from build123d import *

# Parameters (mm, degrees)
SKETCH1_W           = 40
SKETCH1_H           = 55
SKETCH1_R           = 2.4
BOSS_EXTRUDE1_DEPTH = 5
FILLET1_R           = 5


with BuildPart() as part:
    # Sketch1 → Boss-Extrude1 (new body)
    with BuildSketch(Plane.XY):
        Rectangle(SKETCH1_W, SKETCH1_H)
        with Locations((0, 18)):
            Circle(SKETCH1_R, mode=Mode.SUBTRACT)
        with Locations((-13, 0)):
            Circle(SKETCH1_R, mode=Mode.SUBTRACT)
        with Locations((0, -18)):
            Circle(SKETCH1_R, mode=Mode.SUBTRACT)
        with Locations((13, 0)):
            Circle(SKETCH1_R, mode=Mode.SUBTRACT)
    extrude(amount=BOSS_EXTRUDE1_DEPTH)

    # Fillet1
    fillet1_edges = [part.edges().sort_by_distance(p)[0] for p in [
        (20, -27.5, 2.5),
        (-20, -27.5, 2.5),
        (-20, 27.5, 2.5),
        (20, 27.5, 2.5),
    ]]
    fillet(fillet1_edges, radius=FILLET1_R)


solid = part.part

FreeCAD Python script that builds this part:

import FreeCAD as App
import Part
import Sketcher

V = App.Vector


def edges_at(feature, points):
    """Names of the edges that pass closest to the given points."""
    edges = feature.Shape.Edges
    near = lambda p: min(range(len(edges)), key=lambda i: edges[i].distToShape(Part.Vertex(*p))[0])
    return sorted({f"Edge{near(p) + 1}" for p in points})


def add_polygon(sketch, points):
    """Adds a closed chain of lines whose ends are joined by coincident constraints."""
    first, n = sketch.GeometryCount, len(points)
    for a, b in zip(points, points[1:] + points[:1]):
        sketch.addGeometry(Part.LineSegment(App.Vector(*a, 0), App.Vector(*b, 0)), False)
    for i in range(n):
        sketch.addConstraint(Sketcher.Constraint("Coincident", first + i, 2, first + (i + 1) % n, 1))

doc = App.newDocument("Part")
params = doc.addObject("Spreadsheet::Sheet", "Params")
for row, (alias, value) in enumerate([
    ("sketch1_diameter", "4.8 mm"),
    ("sketch1_width", "40 mm"),
    ("sketch1_height", "55 mm"),
    ("pad1_length", "5 mm"),
    ("fillet_radius", "5 mm"),
], start=1):
    params.set(f"A{row}", alias)
    params.set(f"B{row}", "=" + value)
    params.setAlias(f"B{row}", alias)

body = doc.addObject("PartDesign::Body", "Body")

sketch1 = body.newObject("Sketcher::SketchObject", "Sketch")
sketch1.AttachmentSupport = (doc.getObject("XY_Plane"), [""])
sketch1.MapMode = "FlatFace"
add_polygon(sketch1, [(-20, 27.5), (-20, -27.5), (20, -27.5), (20, 27.5)])
sketch1.addGeometry(Part.Circle(V(0, -18, 0), V(0, 0, 1), 2.4), False)
sketch1.addGeometry(Part.Circle(V(-13, 0, 0), V(0, 0, 1), 2.4), False)
sketch1.addGeometry(Part.Circle(V(0, 18, 0), V(0, 0, 1), 2.4), False)
sketch1.addGeometry(Part.Circle(V(13, 0, 0), V(0, 0, 1), 2.4), False)
sketch1.addConstraint(Sketcher.Constraint("Vertical", 0))
sketch1.addConstraint(Sketcher.Constraint("Horizontal", 1))
sketch1.addConstraint(Sketcher.Constraint("Vertical", 2))
sketch1.addConstraint(Sketcher.Constraint("Horizontal", 3))
sketch1.addConstraint(Sketcher.Constraint("Equal", 4, 5))
sketch1.addConstraint(Sketcher.Constraint("Equal", 5, 6))
sketch1.addConstraint(Sketcher.Constraint("Equal", 6, 7))
sketch1.addConstraint(Sketcher.Constraint("Symmetric", 4, 3, 6, 3, -1, 1))
sketch1.addConstraint(Sketcher.Constraint("Symmetric", 5, 3, 7, 3, -1, 1))
sketch1.addConstraint(Sketcher.Constraint("Symmetric", 0, 2, 2, 2, -1, 1))
sketch1.addConstraint(Sketcher.Constraint("PointOnObject", 4, 3, -2))
sketch1.addConstraint(Sketcher.Constraint("PointOnObject", 5, 3, -1))
sketch1.addConstraint(Sketcher.Constraint("Diameter", 4, 4.8))
sketch1.addConstraint(Sketcher.Constraint("DistanceX", 1, 1, 1, 2, 40.0))
sketch1.addConstraint(Sketcher.Constraint("DistanceY", 0, 2, 0, 1, 55.0))
sketch1.addConstraint(Sketcher.Constraint("DistanceY", 4, 3, -1, 1, 18.0))
sketch1.addConstraint(Sketcher.Constraint("DistanceX", 5, 3, -1, 1, 13.0))
sketch1.setExpression("Constraints[16]", "Params.sketch1_diameter")
sketch1.setExpression("Constraints[17]", "Params.sketch1_width")
sketch1.setExpression("Constraints[18]", "Params.sketch1_height")
pad1 = body.newObject("PartDesign::Pad", "Pad")
pad1.Profile = sketch1
pad1.setExpression("Length", "Params.pad1_length")
doc.recompute()

fillet = body.newObject("PartDesign::Fillet", "Fillet")
fillet.Base = (pad1, edges_at(pad1, [
    (20, -27.5, 2.5),
    (-20, -27.5, 2.5),
    (-20, 27.5, 2.5),
    (20, 27.5, 2.5),
]))
fillet.setExpression("Radius", "Params.fillet_radius")

doc.recompute()
